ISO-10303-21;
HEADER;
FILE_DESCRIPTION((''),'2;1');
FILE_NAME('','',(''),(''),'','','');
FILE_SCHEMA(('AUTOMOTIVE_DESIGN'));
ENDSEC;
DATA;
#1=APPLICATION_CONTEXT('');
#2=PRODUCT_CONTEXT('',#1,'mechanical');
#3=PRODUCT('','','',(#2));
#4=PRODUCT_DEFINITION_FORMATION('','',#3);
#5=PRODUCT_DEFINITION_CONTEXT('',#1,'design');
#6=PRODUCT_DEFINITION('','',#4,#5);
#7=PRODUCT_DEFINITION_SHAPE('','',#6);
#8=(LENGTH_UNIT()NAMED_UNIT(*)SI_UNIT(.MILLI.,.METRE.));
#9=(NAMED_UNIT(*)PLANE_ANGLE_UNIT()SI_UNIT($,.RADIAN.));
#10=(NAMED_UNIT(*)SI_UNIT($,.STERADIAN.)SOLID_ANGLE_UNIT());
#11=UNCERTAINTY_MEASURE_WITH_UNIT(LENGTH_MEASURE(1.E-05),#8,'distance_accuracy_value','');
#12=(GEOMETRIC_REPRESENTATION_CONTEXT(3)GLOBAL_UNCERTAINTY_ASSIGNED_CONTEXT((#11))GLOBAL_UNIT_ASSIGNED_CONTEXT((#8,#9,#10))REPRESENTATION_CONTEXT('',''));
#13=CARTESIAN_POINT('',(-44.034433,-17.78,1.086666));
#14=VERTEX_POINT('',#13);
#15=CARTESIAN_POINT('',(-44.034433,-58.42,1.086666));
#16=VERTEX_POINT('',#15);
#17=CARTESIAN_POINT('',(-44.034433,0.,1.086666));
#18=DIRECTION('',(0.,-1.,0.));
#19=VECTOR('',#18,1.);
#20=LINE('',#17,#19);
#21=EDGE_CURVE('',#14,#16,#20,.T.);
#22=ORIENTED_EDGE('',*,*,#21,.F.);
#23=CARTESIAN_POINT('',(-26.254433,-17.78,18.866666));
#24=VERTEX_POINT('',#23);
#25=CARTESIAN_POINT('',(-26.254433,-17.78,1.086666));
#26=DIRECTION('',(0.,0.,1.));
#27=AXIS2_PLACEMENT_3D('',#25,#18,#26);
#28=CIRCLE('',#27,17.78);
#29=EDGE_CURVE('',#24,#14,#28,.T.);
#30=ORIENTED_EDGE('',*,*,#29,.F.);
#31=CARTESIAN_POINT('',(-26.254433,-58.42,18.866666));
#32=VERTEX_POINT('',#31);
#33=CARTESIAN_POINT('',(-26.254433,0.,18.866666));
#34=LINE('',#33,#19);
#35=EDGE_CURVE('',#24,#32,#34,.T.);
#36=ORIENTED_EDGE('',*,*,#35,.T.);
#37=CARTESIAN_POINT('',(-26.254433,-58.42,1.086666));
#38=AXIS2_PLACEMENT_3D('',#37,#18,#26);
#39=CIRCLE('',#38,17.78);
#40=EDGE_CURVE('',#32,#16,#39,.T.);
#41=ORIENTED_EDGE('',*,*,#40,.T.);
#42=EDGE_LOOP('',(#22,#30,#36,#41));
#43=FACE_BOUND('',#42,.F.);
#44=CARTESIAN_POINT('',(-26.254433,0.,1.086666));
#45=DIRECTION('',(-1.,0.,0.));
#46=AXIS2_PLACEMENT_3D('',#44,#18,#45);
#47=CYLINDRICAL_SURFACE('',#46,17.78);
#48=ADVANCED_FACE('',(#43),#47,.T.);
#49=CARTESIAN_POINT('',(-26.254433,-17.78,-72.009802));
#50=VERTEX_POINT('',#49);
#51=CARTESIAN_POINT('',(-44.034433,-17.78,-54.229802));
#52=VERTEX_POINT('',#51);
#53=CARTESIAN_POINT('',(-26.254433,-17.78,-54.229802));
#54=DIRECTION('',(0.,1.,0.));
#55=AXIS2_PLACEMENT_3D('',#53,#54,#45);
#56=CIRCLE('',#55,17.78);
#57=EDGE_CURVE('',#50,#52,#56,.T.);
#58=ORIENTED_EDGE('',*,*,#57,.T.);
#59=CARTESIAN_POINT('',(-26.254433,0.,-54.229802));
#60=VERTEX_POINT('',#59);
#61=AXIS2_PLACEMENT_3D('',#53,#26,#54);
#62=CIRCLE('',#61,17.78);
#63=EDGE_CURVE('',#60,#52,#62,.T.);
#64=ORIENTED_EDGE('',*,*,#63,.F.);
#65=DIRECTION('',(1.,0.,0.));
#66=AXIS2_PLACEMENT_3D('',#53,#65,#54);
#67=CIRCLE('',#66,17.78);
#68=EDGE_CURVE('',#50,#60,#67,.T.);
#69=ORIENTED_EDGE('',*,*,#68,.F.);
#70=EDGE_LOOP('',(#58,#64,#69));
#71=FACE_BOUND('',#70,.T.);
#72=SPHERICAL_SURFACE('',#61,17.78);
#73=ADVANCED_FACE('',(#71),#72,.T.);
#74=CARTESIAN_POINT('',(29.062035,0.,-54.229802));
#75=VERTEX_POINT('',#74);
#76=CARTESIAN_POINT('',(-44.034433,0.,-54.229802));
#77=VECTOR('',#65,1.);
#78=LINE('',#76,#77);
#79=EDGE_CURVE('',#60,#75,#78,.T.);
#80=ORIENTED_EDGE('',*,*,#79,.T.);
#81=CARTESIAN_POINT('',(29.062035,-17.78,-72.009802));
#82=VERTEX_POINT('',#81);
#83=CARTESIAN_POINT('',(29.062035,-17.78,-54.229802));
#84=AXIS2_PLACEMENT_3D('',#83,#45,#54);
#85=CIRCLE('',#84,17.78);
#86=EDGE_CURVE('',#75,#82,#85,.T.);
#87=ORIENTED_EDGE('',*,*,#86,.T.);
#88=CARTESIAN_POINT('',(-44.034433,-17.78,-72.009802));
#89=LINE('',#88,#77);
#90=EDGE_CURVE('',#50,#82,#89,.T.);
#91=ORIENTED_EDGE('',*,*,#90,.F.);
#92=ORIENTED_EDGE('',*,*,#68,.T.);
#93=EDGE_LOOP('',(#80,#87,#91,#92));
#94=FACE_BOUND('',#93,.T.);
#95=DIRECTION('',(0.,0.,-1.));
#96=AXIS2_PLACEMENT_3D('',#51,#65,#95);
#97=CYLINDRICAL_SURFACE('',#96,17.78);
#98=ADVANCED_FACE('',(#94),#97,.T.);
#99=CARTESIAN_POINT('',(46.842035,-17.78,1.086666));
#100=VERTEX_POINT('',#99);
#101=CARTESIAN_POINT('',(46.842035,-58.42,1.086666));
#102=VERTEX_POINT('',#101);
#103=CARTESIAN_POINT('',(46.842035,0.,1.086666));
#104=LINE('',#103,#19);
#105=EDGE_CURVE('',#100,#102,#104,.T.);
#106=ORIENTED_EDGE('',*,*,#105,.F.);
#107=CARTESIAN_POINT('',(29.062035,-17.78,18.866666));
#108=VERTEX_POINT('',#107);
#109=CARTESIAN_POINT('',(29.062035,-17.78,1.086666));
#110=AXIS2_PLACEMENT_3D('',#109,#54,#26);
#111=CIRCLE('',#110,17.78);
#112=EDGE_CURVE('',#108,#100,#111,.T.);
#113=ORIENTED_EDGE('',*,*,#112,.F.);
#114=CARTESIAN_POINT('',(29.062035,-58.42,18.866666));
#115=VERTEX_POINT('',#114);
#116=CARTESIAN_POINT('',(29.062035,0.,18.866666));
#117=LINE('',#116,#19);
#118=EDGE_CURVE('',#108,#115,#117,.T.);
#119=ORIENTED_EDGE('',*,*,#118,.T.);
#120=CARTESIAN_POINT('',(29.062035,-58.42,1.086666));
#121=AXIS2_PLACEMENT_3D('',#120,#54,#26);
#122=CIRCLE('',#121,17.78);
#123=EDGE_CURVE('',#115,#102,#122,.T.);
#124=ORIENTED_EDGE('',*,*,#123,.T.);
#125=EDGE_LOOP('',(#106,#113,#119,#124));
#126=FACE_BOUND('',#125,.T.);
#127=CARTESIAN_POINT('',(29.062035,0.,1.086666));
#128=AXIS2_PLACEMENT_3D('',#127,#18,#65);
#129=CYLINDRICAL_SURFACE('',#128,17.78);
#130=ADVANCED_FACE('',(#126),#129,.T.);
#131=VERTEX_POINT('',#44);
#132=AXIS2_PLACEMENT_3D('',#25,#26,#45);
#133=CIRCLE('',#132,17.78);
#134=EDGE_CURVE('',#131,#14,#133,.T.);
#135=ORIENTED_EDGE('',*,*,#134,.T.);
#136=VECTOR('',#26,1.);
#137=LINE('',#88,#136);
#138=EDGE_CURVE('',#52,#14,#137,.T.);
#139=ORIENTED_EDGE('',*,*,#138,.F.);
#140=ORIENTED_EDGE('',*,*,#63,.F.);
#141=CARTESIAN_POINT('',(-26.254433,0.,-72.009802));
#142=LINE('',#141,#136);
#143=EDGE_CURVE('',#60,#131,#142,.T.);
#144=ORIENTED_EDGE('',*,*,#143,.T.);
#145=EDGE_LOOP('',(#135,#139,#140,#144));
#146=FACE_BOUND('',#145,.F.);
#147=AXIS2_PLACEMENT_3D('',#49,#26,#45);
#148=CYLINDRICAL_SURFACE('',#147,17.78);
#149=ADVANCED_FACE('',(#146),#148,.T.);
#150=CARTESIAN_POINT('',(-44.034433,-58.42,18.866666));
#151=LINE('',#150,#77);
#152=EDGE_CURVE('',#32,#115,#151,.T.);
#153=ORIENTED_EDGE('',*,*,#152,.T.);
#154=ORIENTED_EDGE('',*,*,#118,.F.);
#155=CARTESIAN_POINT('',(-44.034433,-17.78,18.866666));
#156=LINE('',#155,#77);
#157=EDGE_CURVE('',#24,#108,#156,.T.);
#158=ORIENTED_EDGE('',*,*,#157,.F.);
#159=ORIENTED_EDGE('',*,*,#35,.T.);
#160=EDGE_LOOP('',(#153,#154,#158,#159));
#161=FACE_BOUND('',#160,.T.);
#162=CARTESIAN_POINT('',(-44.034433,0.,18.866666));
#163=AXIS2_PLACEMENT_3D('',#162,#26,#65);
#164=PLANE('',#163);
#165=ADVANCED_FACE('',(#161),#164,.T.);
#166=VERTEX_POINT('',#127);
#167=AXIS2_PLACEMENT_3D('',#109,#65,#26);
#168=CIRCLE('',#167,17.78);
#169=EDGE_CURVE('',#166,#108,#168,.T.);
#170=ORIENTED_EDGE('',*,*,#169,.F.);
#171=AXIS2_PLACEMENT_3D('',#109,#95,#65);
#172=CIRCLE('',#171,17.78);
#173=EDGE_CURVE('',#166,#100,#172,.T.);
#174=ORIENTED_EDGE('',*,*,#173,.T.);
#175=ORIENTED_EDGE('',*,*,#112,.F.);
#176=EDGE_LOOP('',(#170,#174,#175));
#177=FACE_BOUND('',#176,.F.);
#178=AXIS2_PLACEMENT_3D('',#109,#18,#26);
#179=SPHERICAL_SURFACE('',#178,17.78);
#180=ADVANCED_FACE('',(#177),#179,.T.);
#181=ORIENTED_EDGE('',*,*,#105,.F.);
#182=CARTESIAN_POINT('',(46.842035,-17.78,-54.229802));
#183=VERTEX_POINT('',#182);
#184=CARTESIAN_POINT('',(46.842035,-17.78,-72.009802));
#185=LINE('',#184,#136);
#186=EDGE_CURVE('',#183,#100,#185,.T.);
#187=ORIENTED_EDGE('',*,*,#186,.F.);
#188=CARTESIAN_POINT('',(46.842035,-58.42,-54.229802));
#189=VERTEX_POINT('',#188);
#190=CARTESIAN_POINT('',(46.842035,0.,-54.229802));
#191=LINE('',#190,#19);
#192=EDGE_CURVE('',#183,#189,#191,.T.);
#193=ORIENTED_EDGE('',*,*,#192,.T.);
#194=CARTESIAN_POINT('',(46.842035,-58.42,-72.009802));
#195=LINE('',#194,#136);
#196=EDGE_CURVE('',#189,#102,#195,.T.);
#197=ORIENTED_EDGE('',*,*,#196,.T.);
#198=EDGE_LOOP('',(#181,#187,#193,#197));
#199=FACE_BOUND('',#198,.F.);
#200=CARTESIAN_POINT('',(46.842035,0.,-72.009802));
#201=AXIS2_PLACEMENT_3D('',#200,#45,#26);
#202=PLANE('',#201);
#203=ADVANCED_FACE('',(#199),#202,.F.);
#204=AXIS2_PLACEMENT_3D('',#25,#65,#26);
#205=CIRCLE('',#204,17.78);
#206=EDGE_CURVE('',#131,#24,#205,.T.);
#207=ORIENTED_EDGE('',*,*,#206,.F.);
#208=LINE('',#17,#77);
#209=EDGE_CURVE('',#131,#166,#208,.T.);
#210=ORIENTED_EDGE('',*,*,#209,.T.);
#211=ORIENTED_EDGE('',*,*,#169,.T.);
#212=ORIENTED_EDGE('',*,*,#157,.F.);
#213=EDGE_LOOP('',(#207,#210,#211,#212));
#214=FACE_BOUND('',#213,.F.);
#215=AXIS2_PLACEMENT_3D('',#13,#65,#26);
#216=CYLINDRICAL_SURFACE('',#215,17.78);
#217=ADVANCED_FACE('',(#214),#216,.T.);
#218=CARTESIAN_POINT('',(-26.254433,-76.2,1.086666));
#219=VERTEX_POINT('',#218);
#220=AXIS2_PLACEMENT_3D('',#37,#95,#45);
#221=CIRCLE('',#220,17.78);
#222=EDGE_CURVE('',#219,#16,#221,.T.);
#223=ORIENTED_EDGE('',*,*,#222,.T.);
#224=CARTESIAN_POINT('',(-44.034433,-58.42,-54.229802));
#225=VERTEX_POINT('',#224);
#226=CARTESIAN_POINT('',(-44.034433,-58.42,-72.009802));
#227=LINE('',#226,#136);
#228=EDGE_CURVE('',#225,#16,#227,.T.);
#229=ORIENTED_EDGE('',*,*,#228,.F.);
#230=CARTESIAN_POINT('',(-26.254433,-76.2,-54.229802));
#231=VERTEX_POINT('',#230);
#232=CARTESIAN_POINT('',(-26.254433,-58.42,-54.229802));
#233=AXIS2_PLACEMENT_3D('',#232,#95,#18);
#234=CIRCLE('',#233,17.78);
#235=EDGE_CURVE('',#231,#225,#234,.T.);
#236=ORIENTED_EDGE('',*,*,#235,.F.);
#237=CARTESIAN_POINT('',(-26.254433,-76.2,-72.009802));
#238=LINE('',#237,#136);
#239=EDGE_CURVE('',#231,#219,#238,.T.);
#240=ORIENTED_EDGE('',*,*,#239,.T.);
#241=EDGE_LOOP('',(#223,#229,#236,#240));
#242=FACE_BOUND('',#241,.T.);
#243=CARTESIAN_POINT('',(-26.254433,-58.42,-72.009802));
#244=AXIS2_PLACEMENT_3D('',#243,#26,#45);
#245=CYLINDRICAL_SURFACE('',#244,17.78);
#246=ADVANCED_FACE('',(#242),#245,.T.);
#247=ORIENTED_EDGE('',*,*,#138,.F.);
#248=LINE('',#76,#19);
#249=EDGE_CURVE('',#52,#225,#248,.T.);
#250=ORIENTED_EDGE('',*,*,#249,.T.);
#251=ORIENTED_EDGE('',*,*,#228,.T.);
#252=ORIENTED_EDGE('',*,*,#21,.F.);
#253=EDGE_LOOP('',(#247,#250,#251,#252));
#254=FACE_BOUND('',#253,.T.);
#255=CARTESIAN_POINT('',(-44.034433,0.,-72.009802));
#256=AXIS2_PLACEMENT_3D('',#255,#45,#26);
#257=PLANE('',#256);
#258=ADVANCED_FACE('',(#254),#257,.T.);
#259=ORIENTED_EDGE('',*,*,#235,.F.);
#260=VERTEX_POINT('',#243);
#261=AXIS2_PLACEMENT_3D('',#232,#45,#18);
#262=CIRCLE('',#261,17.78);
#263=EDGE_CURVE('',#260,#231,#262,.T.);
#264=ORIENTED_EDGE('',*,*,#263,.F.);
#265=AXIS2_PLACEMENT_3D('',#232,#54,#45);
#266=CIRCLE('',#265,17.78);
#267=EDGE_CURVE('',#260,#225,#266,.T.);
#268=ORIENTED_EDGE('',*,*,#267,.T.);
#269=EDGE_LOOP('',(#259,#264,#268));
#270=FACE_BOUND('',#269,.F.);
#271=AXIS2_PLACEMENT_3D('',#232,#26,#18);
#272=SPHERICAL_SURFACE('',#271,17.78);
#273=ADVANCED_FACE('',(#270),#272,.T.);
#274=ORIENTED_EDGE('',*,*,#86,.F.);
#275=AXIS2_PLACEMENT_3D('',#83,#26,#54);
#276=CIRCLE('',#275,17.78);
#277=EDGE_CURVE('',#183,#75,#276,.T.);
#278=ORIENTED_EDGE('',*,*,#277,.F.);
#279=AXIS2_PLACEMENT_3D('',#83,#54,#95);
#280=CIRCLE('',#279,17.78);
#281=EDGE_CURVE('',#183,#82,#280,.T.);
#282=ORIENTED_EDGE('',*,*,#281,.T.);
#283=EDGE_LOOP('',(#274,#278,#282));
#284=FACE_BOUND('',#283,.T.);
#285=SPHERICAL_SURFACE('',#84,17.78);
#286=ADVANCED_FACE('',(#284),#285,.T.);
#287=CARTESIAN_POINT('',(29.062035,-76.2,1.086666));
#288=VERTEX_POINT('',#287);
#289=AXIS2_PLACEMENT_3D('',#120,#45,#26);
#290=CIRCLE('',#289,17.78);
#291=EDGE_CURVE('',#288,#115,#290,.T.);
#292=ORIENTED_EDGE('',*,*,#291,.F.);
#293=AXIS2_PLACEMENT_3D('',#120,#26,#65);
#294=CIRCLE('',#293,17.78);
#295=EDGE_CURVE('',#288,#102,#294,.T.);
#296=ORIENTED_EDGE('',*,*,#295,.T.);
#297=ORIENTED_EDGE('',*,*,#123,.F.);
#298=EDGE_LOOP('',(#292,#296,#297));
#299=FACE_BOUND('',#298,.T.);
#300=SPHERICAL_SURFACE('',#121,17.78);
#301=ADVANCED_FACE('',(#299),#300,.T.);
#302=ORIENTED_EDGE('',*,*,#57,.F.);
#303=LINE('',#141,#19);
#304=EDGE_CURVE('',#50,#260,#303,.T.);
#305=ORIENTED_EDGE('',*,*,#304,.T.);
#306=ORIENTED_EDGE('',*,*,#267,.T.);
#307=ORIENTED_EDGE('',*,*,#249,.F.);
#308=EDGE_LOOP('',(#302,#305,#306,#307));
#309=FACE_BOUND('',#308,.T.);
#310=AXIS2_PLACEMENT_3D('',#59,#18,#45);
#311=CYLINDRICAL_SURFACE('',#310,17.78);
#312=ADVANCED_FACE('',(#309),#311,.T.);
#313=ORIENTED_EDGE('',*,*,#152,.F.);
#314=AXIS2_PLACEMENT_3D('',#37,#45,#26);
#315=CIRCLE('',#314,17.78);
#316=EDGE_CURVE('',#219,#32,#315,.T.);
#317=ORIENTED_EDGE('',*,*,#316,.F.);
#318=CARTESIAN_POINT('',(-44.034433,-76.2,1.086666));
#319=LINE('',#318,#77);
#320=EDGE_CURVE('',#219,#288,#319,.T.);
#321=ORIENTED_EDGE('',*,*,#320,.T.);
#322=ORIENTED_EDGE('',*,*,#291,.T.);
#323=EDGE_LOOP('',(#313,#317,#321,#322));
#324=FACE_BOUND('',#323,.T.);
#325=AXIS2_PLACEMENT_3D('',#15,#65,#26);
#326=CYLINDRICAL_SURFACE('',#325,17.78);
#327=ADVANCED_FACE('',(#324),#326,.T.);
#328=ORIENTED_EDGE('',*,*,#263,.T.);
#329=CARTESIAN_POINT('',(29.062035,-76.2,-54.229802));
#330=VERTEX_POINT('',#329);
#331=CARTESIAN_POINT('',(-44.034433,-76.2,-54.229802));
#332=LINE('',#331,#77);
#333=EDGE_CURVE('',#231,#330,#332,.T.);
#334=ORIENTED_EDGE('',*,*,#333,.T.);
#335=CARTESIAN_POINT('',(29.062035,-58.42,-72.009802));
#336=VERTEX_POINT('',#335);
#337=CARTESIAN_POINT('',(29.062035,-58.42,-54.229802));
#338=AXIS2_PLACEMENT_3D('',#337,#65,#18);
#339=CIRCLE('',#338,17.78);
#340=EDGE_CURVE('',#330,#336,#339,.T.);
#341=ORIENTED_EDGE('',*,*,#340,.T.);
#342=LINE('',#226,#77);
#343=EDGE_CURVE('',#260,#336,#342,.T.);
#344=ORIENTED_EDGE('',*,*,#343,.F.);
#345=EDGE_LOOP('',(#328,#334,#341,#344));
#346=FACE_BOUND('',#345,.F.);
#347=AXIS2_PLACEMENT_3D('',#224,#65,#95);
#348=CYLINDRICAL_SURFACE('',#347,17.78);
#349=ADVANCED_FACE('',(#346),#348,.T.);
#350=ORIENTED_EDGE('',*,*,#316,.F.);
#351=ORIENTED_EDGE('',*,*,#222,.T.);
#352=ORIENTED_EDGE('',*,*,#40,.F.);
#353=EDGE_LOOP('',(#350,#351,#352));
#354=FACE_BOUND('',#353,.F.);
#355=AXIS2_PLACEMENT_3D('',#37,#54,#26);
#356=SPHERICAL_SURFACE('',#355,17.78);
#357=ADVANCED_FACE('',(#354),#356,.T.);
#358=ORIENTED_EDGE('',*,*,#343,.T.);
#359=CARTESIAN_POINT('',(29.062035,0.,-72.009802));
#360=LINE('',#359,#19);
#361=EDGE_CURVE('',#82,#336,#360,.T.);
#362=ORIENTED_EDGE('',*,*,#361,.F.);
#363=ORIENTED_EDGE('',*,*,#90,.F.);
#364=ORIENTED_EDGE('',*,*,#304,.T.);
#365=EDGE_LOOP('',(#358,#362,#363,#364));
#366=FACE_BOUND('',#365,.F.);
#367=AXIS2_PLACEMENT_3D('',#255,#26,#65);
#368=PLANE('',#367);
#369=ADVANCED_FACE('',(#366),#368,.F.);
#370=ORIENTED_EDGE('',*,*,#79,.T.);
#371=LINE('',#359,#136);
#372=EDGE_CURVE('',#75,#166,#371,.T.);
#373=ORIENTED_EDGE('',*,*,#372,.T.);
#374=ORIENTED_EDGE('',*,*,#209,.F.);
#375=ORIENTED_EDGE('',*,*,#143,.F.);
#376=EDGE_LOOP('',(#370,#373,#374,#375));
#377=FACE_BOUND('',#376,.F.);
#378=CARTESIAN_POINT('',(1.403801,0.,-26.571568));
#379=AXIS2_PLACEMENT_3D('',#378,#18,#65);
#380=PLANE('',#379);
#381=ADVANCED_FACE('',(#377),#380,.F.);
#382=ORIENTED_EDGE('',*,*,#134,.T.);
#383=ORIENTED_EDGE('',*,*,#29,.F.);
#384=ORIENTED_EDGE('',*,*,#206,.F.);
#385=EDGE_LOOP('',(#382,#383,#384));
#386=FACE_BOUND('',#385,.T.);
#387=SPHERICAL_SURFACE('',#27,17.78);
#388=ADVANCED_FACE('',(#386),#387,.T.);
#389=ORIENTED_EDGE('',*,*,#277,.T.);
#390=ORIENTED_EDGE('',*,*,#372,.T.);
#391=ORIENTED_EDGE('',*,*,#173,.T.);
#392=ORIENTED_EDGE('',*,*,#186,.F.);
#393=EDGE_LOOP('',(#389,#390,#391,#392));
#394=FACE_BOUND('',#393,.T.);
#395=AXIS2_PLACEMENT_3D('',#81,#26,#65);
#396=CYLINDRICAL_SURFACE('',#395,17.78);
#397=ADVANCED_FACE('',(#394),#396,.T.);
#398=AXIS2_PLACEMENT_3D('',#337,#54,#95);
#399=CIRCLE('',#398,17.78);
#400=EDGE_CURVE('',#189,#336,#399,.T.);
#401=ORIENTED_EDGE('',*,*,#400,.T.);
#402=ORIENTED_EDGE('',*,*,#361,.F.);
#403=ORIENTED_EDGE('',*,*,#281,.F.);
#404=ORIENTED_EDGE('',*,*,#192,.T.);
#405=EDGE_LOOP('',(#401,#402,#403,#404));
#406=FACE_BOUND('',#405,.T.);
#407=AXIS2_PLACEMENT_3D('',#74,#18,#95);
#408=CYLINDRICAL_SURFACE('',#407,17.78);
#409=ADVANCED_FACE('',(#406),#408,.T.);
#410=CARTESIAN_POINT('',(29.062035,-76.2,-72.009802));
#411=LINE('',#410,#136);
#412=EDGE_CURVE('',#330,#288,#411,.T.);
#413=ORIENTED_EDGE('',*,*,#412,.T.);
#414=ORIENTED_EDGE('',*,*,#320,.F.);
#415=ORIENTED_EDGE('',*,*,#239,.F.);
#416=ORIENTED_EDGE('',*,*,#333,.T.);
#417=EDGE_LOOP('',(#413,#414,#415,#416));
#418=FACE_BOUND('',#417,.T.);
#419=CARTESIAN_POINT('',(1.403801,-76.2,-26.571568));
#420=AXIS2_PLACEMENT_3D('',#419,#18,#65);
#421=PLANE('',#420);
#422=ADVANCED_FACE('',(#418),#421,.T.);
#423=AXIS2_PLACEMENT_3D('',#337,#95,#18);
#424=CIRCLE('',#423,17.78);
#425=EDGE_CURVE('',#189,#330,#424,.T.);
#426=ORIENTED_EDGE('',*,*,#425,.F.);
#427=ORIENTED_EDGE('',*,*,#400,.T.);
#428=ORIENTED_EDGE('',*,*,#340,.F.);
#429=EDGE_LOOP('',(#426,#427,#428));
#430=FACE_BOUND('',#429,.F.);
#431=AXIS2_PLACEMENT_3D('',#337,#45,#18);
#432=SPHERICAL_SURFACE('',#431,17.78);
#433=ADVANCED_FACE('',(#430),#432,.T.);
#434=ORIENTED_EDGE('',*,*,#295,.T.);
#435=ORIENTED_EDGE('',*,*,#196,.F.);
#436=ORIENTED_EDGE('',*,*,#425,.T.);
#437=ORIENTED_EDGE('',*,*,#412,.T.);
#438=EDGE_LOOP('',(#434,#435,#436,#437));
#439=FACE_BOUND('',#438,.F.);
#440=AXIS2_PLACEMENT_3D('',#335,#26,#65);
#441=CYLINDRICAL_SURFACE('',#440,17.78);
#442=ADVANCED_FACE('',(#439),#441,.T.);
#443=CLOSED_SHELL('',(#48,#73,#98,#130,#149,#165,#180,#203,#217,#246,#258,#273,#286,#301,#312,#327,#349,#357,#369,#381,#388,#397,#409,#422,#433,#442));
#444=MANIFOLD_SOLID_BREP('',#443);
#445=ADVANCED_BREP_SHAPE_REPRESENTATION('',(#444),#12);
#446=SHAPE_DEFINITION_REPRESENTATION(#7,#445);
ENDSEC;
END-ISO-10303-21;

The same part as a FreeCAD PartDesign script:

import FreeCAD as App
import Part
import Sketcher
from FreeCAD import Vector
Q = App.Units.Quantity


def add_polygon(sketch, points):
    """Adds a closed chain of lines whose ends are joined by coincident constraints."""
    first, n = sketch.GeometryCount, len(points)
    for a, b in zip(points, points[1:] + points[:1]):
        sketch.addGeometry(Part.LineSegment(App.Vector(*a, 0), App.Vector(*b, 0)), False)
    for i in range(n):
        sketch.addConstraint(Sketcher.Constraint("Coincident", first + i, 2, first + (i + 1) % n, 1))

doc = App.newDocument("Part")
body = doc.addObject("PartDesign::Body", "Body")

# Sketch on XZ plane
sketch1 = doc.addObject("Sketcher::SketchObject", "Sketch")
body.addObject(sketch1)
sketch1.AttachmentSupport = (doc.XZ_Plane, [""])
sketch1.MapMode = "FlatFace"
add_polygon(sketch1, [(-44, 19), (-44, -72), (47, -72), (47, 19)])  # lines 0-3
sketch1.addConstraint(Sketcher.Constraint("Vertical", 0))
sketch1.addConstraint(Sketcher.Constraint("Horizontal", 1))
sketch1.addConstraint(Sketcher.Constraint("Vertical", 2))
sketch1.addConstraint(Sketcher.Constraint("Horizontal", 3))
sketch1.addConstraint(Sketcher.Constraint("Equal", 3, 0))
sketch1.addConstraint(Sketcher.Constraint("DistanceX", 1, 1, 1, 2, 90.876468))
sketch1.addConstraint(Sketcher.Constraint("DistanceY", 0, 2, -1, 1, 72.009802))
sketch1.addConstraint(Sketcher.Constraint("DistanceX", 0, 2, -1, 1, 44.034433))
pad1 = doc.addObject("PartDesign::Pad", "Pad")
body.addObject(pad1)
pad1.Profile = sketch1
pad1.Length = Q("3 in")
doc.recompute()

fillet = doc.addObject("PartDesign::Fillet", "Fillet")
body.addObject(fillet)
fillet.Base = (pad1, ["Edge1"])
fillet.UseAllEdges = True
fillet.Radius = Q("0.7 in")

doc.recompute()
